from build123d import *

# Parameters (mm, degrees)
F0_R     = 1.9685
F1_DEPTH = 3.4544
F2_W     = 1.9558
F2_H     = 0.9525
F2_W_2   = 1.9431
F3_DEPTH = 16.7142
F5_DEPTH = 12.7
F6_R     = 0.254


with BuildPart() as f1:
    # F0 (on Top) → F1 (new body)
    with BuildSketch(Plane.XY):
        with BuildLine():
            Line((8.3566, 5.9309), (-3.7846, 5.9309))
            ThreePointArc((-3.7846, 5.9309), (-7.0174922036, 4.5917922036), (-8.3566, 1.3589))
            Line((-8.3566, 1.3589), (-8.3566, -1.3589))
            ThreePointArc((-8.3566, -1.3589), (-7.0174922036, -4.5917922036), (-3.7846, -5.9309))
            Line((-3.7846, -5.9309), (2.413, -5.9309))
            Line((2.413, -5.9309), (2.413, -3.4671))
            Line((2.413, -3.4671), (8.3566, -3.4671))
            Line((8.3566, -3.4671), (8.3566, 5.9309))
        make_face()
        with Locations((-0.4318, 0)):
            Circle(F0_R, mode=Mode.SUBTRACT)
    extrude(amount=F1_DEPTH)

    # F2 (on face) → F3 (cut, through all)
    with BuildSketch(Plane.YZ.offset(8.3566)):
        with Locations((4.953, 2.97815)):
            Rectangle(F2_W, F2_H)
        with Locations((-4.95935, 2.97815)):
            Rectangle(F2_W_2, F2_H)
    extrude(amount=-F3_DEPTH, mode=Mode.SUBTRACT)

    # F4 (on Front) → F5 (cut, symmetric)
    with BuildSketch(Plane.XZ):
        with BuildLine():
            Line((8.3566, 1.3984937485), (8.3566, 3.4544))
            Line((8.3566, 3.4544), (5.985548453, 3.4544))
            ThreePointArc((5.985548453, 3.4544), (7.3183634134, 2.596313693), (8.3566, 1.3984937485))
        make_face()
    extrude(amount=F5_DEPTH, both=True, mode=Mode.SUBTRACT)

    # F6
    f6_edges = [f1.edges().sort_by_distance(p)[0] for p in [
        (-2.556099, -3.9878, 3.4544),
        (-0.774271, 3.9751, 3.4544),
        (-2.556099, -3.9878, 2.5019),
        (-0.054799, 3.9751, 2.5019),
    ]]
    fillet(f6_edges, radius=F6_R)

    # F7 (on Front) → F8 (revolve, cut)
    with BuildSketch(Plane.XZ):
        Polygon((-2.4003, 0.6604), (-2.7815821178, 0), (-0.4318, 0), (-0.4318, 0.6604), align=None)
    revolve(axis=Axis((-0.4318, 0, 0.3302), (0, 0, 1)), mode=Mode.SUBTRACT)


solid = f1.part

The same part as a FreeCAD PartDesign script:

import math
import FreeCAD as App
import Part
import Sketcher

V = App.Vector
Q = App.Units.Quantity


def edges_at(feature, points):
    """Names of the edges that pass closest to the given points."""
    edges = feature.Shape.Edges
    near = lambda p: min(range(len(edges)), key=lambda i: edges[i].distToShape(Part.Vertex(*p))[0])
    return sorted({f"Edge{near(p) + 1}" for p in points})

doc = App.newDocument("Part")
body = doc.addObject("PartDesign::Body", "Body")

# Sketch on XY plane
sketch1 = body.newObject("Sketcher::SketchObject", "Sketch")
sketch1.AttachmentSupport = (doc.getObject("XY_Plane"), [""])
sketch1.MapMode = "FlatFace"
sketch1.addGeometry(Part.LineSegment(V(8.3566, 5.9309, 0), V(-3.7846, 5.9309, 0)), False)
sketch1.addGeometry(Part.ArcOfCircle(Part.Circle(V(-3.7846, 1.3589, 0), V(0, 0, 1), 4.572), math.radians(90), math.radians(180)), False)
sketch1.addGeometry(Part.LineSegment(V(-8.3566, 1.3589, 0), V(-8.3566, -1.3589, 0)), False)
sketch1.addGeometry(Part.ArcOfCircle(Part.Circle(V(-3.7846, -1.3589, 0), V(0, 0, 1), 4.572), math.radians(180), math.radians(270)), False)
sketch1.addGeometry(Part.LineSegment(V(-3.7846, -5.9309, 0), V(2.413, -5.9309, 0)), False)
sketch1.addGeometry(Part.LineSegment(V(2.413, -5.9309, 0), V(2.413, -3.4671, 0)), False)
sketch1.addGeometry(Part.LineSegment(V(2.413, -3.4671, 0), V(8.3566, -3.4671, 0)), False)
sketch1.addGeometry(Part.LineSegment(V(8.3566, -3.4671, 0), V(8.3566, 5.9309, 0)), False)
sketch1.addGeometry(Part.Circle(V(-0.4318, 0, 0), V(0, 0, 1), 1.9685), False)
sketch1.addConstraint(Sketcher.Constraint("Tangent", 0, 2, 1, 1))
sketch1.addConstraint(Sketcher.Constraint("Tangent", 1, 2, 2, 1))
sketch1.addConstraint(Sketcher.Constraint("Tangent", 2, 2, 3, 1))
sketch1.addConstraint(Sketcher.Constraint("Tangent", 3, 2, 4, 1))
sketch1.addConstraint(Sketcher.Constraint("Coincident", 4, 2, 5, 1))
sketch1.addConstraint(Sketcher.Constraint("Coincident", 5, 2, 6, 1))
sketch1.addConstraint(Sketcher.Constraint("Coincident", 6, 2, 7, 1))
sketch1.addConstraint(Sketcher.Constraint("Coincident", 7, 2, 0, 1))
sketch1.addConstraint(Sketcher.Constraint("Horizontal", 0))
sketch1.addConstraint(Sketcher.Constraint("Vertical", 2))
sketch1.addConstraint(Sketcher.Constraint("Horizontal", 4))
sketch1.addConstraint(Sketcher.Constraint("Vertical", 5))
sketch1.addConstraint(Sketcher.Constraint("Horizontal", 6))
sketch1.addConstraint(Sketcher.Constraint("Vertical", 7))
sketch1.addConstraint(Sketcher.Constraint("Equal", 1, 3))
sketch1.addConstraint(Sketcher.Constraint("PointOnObject", 8, 3, -1))
sketch1.addConstraint(Sketcher.Constraint("Radius", 1, Q("0.18 in")))
sketch1.addConstraint(Sketcher.Constraint("Diameter", 8, Q("0.155 in")))
sketch1.addConstraint(Sketcher.Constraint("DistanceY", 7, 1, 7, 2, Q("0.37 in")))
sketch1.addConstraint(Sketcher.Constraint("DistanceX", 0, 2, 0, 1, Q("0.478 in")))
sketch1.addConstraint(Sketcher.Constraint("DistanceX", 4, 1, 4, 2, Q("0.244 in")))
sketch1.addConstraint(Sketcher.Constraint("DistanceY", 2, 2, 2, 1, Q("0.107 in")))
sketch1.addConstraint(Sketcher.Constraint("DistanceX", 1, 3, -1, 1, Q("0.149 in")))
sketch1.addConstraint(Sketcher.Constraint("DistanceX", 8, 3, -1, 1, Q("0.017 in")))
sketch1.addConstraint(Sketcher.Constraint("DistanceY", -1, 1, 1, 3, Q("0.0535 in")))
pad1 = body.newObject("PartDesign::Pad", "Pad")
pad1.Profile = sketch1
pad1.Length = Q("0.136 in")

# Sketch on YZ plane
sketch2 = body.newObject("Sketcher::SketchObject", "Sketch001")
sketch2.AttachmentSupport = (doc.getObject("YZ_Plane"), [""])
sketch2.MapMode = "FlatFace"
sketch2.AttachmentOffset = App.Placement(V(0, 0, 0.329 * 25.4), App.Rotation())
sketch2.addGeometry(Part.LineSegment(V(3.9751, 3.4544, 0), V(3.9751, 2.5019, 0)), False)
sketch2.addGeometry(Part.LineSegment(V(3.9751, 2.5019, 0), V(5.9309, 2.5019, 0)), False)
sketch2.addGeometry(Part.LineSegment(V(5.9309, 2.5019, 0), V(5.9309, 3.4544, 0)), False)
sketch2.addGeometry(Part.LineSegment(V(5.9309, 3.4544, 0), V(3.9751, 3.4544, 0)), False)
sketch2.addGeometry(Part.LineSegment(V(-5.9309, 3.4544, 0), V(-5.9309, 2.5019, 0)), False)
sketch2.addGeometry(Part.LineSegment(V(-5.9309, 2.5019, 0), V(-3.9878, 2.5019, 0)), False)
sketch2.addGeometry(Part.LineSegment(V(-3.9878, 2.5019, 0), V(-3.9878, 3.4544, 0)), False)
sketch2.addGeometry(Part.LineSegment(V(-3.9878, 3.4544, 0), V(-5.9309, 3.4544, 0)), False)
sketch2.addConstraint(Sketcher.Constraint("Coincident", 0, 2, 1, 1))
sketch2.addConstraint(Sketcher.Constraint("Coincident", 1, 2, 2, 1))
sketch2.addConstraint(Sketcher.Constraint("Coincident", 2, 2, 3, 1))
sketch2.addConstraint(Sketcher.Constraint("Coincident", 3, 2, 0, 1))
sketch2.addConstraint(Sketcher.Constraint("Coincident", 4, 2, 5, 1))
sketch2.addConstraint(Sketcher.Constraint("Coincident", 5, 2, 6, 1))
sketch2.addConstraint(Sketcher.Constraint("Coincident", 6, 2, 7, 1))
sketch2.addConstraint(Sketcher.Constraint("Coincident", 7, 2, 4, 1))
sketch2.addConstraint(Sketcher.Constraint("Vertical", 0))
sketch2.addConstraint(Sketcher.Constraint("Horizontal", 1))
sketch2.addConstraint(Sketcher.Constraint("Vertical", 2))
sketch2.addConstraint(Sketcher.Constraint("Horizontal", 3))
sketch2.addConstraint(Sketcher.Constraint("Vertical", 4))
sketch2.addConstraint(Sketcher.Constraint("Horizontal", 5))
sketch2.addConstraint(Sketcher.Constraint("Vertical", 6))
sketch2.addConstraint(Sketcher.Constraint("Horizontal", 7))
sketch2.addConstraint(Sketcher.Constraint("Symmetric", 1, 2, 4, 2, -2))
sketch2.addConstraint(Sketcher.Constraint("Horizontal", 3, 2, 6, 2))
sketch2.addConstraint(Sketcher.Constraint("DistanceX", 1, 1, 1, 2, Q("0.077 in")))
sketch2.addConstraint(Sketcher.Constraint("DistanceX", 4, 2, 0, 2, Q("0.39 in")))
sketch2.addConstraint(Sketcher.Constraint("DistanceX", 5, 1, 5, 2, Q("0.0765 in")))
sketch2.addConstraint(Sketcher.Constraint("DistanceY", 0, 2, 0, 1, Q("0.0375 in")))
sketch2.addConstraint(Sketcher.Constraint("DistanceY", -1, 1, 2, 2, Q("0.136 in")))
pocket1 = body.newObject("PartDesign::Pocket", "Pocket")
pocket1.Profile = sketch2
pocket1.Type = "ThroughAll"

# Sketch on XZ plane
sketch3 = body.newObject("Sketcher::SketchObject", "Sketch002")
sketch3.AttachmentSupport = (doc.getObject("XZ_Plane"), [""])
sketch3.MapMode = "FlatFace"
sketch3.addGeometry(Part.LineSegment(V(8.3566, 1.398494, 0), V(8.3566, 3.4544, 0)), False)
sketch3.addGeometry(Part.LineSegment(V(8.3566, 3.4544, 0), V(5.985548, 3.4544, 0)), False)
sketch3.addGeometry(Part.ArcOfCircle(Part.Circle(V(3.6576, -1.6256, 0), V(0, 0, 1), 5.588), math.radians(32.763758), math.radians(65.380023)), False)
sketch3.addConstraint(Sketcher.Constraint("Coincident", 0, 2, 1, 1))
sketch3.addConstraint(Sketcher.Constraint("Coincident", 1, 2, 2, 2))
sketch3.addConstraint(Sketcher.Constraint("Coincident", 2, 1, 0, 1))
sketch3.addConstraint(Sketcher.Constraint("Vertical", 0))
sketch3.addConstraint(Sketcher.Constraint("Horizontal", 1))
sketch3.addConstraint(Sketcher.Constraint("Radius", 2, Q("0.22 in")))
sketch3.addConstraint(Sketcher.Constraint("DistanceY", 2, 3, 0, 2, Q("0.2 in")))
sketch3.addConstraint(Sketcher.Constraint("DistanceX", -1, 1, 2, 3, Q("0.144 in")))
sketch3.addConstraint(Sketcher.Constraint("DistanceY", 2, 3, -1, 1, Q("0.064 in")))
sketch3.addConstraint(Sketcher.Constraint("DistanceX", -1, 1, 0, 2, Q("0.329 in")))
pocket2 = body.newObject("PartDesign::Pocket", "Pocket001")
pocket2.Profile = sketch3
pocket2.Length = Q("1 in")
pocket2.Midplane = True
doc.recompute()

fillet = body.newObject("PartDesign::Fillet", "Fillet")
fillet.Base = (pocket2, edges_at(pocket2, [
    (-2.556, -3.988, 3.454),
    (-0.774, 3.975, 3.454),
    (-2.556, -3.988, 2.502),
    (-0.055, 3.975, 2.502),
]))
fillet.Radius = Q("0.01 in")

# Sketch on XZ plane
sketch4 = body.newObject("Sketcher::SketchObject", "Sketch003")
sketch4.AttachmentSupport = (doc.getObject("XZ_Plane"), [""])
sketch4.MapMode = "FlatFace"
sketch4.addGeometry(Part.LineSegment(V(-2.4003, 0.6604, 0), V(-2.781582, 0, 0)), False)
sketch4.addGeometry(Part.LineSegment(V(-2.781582, 0, 0), V(-0.4318, 0, 0)), False)
sketch4.addGeometry(Part.LineSegment(V(-0.4318, 0, 0), V(-0.4318, 0.6604, 0)), False)
sketch4.addGeometry(Part.LineSegment(V(-0.4318, 0.6604, 0), V(-2.4003, 0.6604, 0)), False)
sketch4.addGeometry(Part.LineSegment(V(-0.4318, 0, 0), V(-0.4318, 0.6604, 0)), True)  # axis
sketch4.addConstraint(Sketcher.Constraint("Coincident", 0, 2, 1, 1))
sketch4.addConstraint(Sketcher.Constraint("Coincident", 1, 2, 2, 1))
sketch4.addConstraint(Sketcher.Constraint("Coincident", 2, 2, 3, 1))
sketch4.addConstraint(Sketcher.Constraint("Coincident", 3, 2, 0, 1))
sketch4.addConstraint(Sketcher.Constraint("Horizontal", 1))
sketch4.addConstraint(Sketcher.Constraint("Vertical", 2))
sketch4.addConstraint(Sketcher.Constraint("Horizontal", 3))
sketch4.addConstraint(Sketcher.Constraint("Vertical", 4))
sketch4.addConstraint(Sketcher.Constraint("Coincident", 4, 1, 1, 2))
sketch4.addConstraint(Sketcher.Constraint("PointOnObject", 0, 2, -1))
sketch4.addConstraint(Sketcher.Constraint("Horizontal", 3, 2, 4, 2))
sketch4.addConstraint(Sketcher.Constraint("Angle", 0, Q("-120 deg")))
sketch4.addConstraint(Sketcher.Constraint("DistanceY", 2, 1, 2, 2, Q("0.026 in")))
sketch4.addConstraint(Sketcher.Constraint("DistanceX", 3, 2, 3, 1, Q("0.0775 in")))
sketch4.addConstraint(Sketcher.Constraint("DistanceX", 1, 2, -1, 1, Q("0.017 in")))
groove = body.newObject("PartDesign::Groove", "Groove")
groove.Profile = sketch4
groove.ReferenceAxis = (sketch4, ["Axis0"])
groove.Angle = 360

doc.recompute()
